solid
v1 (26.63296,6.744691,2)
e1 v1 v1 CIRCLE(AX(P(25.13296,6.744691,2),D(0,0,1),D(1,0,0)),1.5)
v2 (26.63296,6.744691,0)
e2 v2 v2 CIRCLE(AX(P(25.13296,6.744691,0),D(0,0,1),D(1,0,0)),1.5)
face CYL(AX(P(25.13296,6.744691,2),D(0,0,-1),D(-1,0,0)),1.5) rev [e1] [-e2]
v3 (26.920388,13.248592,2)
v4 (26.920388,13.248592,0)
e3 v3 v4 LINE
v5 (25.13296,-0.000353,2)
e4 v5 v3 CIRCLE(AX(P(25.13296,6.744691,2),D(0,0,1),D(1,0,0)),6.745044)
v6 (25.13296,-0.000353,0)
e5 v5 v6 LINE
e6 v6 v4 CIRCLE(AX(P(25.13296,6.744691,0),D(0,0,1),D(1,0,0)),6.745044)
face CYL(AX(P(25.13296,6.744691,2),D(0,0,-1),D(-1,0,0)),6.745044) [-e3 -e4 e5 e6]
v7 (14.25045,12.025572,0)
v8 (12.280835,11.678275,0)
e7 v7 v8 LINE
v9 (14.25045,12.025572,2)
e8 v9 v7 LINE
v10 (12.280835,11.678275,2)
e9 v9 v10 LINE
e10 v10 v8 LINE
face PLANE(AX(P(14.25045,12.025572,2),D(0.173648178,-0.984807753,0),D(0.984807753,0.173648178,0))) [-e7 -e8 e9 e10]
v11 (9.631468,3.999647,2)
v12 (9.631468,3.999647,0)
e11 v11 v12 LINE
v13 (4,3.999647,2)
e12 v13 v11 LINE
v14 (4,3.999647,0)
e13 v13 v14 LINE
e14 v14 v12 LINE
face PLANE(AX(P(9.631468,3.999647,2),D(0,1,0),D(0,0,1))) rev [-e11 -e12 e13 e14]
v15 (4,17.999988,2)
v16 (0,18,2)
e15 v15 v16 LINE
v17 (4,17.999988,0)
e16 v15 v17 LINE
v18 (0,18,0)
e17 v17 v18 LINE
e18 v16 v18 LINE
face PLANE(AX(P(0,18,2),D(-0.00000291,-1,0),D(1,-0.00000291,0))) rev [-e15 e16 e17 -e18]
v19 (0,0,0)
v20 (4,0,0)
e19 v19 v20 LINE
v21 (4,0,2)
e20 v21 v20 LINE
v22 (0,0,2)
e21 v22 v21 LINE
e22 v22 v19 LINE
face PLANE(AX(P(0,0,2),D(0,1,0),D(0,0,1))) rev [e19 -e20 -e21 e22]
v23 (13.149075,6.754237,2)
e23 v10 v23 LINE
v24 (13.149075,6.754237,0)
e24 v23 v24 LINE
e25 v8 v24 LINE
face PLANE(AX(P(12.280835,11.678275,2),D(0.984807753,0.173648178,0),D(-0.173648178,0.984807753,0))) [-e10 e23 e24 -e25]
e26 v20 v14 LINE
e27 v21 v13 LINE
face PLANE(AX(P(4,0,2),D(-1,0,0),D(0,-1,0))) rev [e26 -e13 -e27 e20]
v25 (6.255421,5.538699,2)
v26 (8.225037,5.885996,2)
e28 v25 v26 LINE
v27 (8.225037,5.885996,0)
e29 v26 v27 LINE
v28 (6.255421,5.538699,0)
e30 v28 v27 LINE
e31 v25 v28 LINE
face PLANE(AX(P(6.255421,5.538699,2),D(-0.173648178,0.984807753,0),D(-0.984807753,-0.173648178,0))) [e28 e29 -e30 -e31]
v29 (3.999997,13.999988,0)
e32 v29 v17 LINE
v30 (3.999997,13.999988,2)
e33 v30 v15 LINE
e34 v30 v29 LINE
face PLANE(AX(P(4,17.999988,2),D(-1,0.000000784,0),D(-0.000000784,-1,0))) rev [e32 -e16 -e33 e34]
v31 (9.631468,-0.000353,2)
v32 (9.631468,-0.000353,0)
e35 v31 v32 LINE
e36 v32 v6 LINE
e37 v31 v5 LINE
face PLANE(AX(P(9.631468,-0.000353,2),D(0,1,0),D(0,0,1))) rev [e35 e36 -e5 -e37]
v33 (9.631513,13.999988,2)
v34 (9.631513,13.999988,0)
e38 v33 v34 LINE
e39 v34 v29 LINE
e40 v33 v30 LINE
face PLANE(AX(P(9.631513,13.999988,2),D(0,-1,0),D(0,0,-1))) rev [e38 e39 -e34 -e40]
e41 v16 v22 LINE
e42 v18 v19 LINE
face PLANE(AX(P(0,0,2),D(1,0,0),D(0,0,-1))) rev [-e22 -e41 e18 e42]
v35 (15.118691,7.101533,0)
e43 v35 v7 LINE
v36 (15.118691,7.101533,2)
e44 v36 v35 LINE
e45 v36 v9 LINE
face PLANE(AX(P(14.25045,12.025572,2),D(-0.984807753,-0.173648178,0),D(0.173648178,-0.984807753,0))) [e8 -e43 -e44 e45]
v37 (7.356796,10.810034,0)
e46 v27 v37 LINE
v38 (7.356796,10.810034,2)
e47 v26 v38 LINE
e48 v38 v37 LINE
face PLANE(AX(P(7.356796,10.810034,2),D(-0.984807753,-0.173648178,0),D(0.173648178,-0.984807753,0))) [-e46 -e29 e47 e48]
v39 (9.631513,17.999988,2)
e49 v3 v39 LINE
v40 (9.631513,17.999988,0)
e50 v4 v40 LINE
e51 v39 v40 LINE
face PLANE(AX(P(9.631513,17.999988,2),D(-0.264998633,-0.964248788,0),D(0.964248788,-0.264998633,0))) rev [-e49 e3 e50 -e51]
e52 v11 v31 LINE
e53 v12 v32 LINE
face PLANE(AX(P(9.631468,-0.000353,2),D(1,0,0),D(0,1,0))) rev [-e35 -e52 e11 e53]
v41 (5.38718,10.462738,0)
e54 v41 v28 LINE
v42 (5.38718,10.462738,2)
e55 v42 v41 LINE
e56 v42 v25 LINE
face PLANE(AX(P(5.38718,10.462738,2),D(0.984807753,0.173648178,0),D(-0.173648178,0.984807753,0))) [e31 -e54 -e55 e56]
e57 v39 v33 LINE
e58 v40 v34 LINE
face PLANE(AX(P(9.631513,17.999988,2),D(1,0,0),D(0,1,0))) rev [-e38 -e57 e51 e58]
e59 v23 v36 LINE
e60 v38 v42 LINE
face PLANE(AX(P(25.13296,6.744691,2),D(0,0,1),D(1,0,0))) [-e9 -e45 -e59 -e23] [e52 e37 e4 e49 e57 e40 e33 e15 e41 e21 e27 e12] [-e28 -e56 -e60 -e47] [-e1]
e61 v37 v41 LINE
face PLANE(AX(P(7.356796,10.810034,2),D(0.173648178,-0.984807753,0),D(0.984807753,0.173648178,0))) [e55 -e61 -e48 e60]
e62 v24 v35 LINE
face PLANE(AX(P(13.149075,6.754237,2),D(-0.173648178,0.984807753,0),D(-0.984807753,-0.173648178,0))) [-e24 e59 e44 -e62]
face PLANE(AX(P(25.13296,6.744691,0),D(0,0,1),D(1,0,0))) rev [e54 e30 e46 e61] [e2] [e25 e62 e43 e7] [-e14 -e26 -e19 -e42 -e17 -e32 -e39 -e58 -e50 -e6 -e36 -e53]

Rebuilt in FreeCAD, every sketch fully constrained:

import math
import FreeCAD as App
import Part
import Sketcher

V = App.Vector
Q = App.Units.Quantity


def add_polygon(sketch, points):
    """Adds a closed chain of lines whose ends are joined by coincident constraints."""
    first, n = sketch.GeometryCount, len(points)
    for a, b in zip(points, points[1:] + points[:1]):
        sketch.addGeometry(Part.LineSegment(App.Vector(*a, 0), App.Vector(*b, 0)), False)
    for i in range(n):
        sketch.addConstraint(Sketcher.Constraint("Coincident", first + i, 2, first + (i + 1) % n, 1))

doc = App.newDocument("Part")
body = doc.addObject("PartDesign::Body", "Body")

sketch1 = doc.addObject("Sketcher::SketchObject", "Sketch")
body.addObject(sketch1)
sketch1.AttachmentSupport = (doc.XY_Plane, [""])
sketch1.MapMode = "FlatFace"
sketch1.addGeometry(Part.LineSegment(V(0, 18, 0), V(0, 0, 0)), False)
sketch1.addGeometry(Part.LineSegment(V(0, 0, 0), V(4, 0, 0)), False)
sketch1.addGeometry(Part.LineSegment(V(4, 0, 0), V(4, 4, 0)), False)
sketch1.addGeometry(Part.LineSegment(V(4, 4, 0), V(9.6, 4, 0)), False)
sketch1.addGeometry(Part.LineSegment(V(9.6, 4, 0), V(9.6, 0, 0)), False)
sketch1.addGeometry(Part.LineSegment(V(9.6, 0, 0), V(25.1, 0, 0)), False)
sketch1.addGeometry(Part.ArcOfCircle(Part.Circle(V(25.1, 6.7, 0), V(0, 0, 1), 6.7), math.radians(-90), math.radians(75)), False)
sketch1.addGeometry(Part.LineSegment(V(26.9, 13.2, 0), V(9.6, 18, 0)), False)
sketch1.addGeometry(Part.LineSegment(V(9.6, 18, 0), V(9.6, 14, 0)), False)
sketch1.addGeometry(Part.LineSegment(V(9.6, 14, 0), V(4, 14, 0)), False)
sketch1.addGeometry(Part.LineSegment(V(4, 14, 0), V(4, 18, 0)), False)
sketch1.addGeometry(Part.LineSegment(V(4, 18, 0), V(0, 18, 0)), False)
sketch1.addGeometry(Part.Circle(V(25.1, 6.7, 0), V(0, 0, 1), 1.5), False)
add_polygon(sketch1, [(7.4, 10.8), (8.2, 5.9), (6.3, 5.5), (5.4, 10.5)])
add_polygon(sketch1, [(14.3, 12), (15.1, 7.1), (13.1, 6.8), (12.3, 11.7)])
sketch1.addConstraint([
    Sketcher.Constraint("Coincident", 0, 2, 1, 1),
    Sketcher.Constraint("Coincident", 1, 2, 2, 1),
    Sketcher.Constraint("Coincident", 2, 2, 3, 1),
    Sketcher.Constraint("Coincident", 3, 2, 4, 1),
    Sketcher.Constraint("Coincident", 4, 2, 5, 1),
    Sketcher.Constraint("Tangent", 5, 2, 6, 1),
    Sketcher.Constraint("Tangent", 6, 2, 7, 1),
    Sketcher.Constraint("Coincident", 7, 2, 8, 1),
    Sketcher.Constraint("Coincident", 8, 2, 9, 1),
    Sketcher.Constraint("Coincident", 9, 2, 10, 1),
    Sketcher.Constraint("Coincident", 10, 2, 11, 1),
    Sketcher.Constraint("Coincident", 11, 2, 0, 1),
    Sketcher.Constraint("Vertical", 0),
    Sketcher.Constraint("Horizontal", 1),
    Sketcher.Constraint("Vertical", 2),
    Sketcher.Constraint("Horizontal", 3),
    Sketcher.Constraint("Vertical", 4),
    Sketcher.Constraint("Horizontal", 5),
    Sketcher.Constraint("Vertical", 8),
    Sketcher.Constraint("Horizontal", 9),
    Sketcher.Constraint("Coincident", 0, 2, -1, 1),
    Sketcher.Constraint("Coincident", 12, 3, 6, 3),
    Sketcher.Constraint("Perpendicular", 13, 14),
    Sketcher.Constraint("Perpendicular", 14, 15),
    Sketcher.Constraint("Perpendicular", 15, 16),
    Sketcher.Constraint("Perpendicular", 16, 17),
    Sketcher.Constraint("Perpendicular", 17, 18),
    Sketcher.Constraint("Perpendicular", 18, 19),
    Sketcher.Constraint("Perpendicular", 19, 20),
    Sketcher.Constraint("Horizontal", 7, 2, 10, 2),
    Sketcher.Constraint("Vertical", 2, 2, 10, 2),
    Sketcher.Constraint("Equal", 1, 4),
    Sketcher.Constraint("Equal", 4, 8),
    Sketcher.Constraint("Equal", 15, 17),
    Sketcher.Constraint("Equal", 16, 18),
    Sketcher.Constraint("Diameter", 12, Q("3 mm")),
    Sketcher.Constraint("DistanceX", 1, 1, 1, 2, Q("4 mm")),
    Sketcher.Constraint("DistanceY", 0, 2, 0, 1, Q("18 mm")),
    Sketcher.Constraint("Angle", 13, Q("-80 deg")),
    Sketcher.Constraint("Distance", 13, Q("5 mm")),
    Sketcher.Constraint("Distance", 14, Q("2 mm")),
    Sketcher.Constraint("Radius", 6, Q("6.745044 mm")),
    Sketcher.Constraint("DistanceY", -1, 1, 14, 2, Q("5.538699 mm")),
    Sketcher.Constraint("DistanceY", 6, 3, 6, 2, Q("6.503901 mm")),
    Sketcher.Constraint("DistanceX", 9, 2, 16, 2, Q("3.356799 mm")),
    Sketcher.Constraint("DistanceY", 17, 2, 16, 2, Q("3.708502 mm")),
    Sketcher.Constraint("Distance", 7, Q("17.92989 mm")),
    Sketcher.Constraint("DistanceX", 3, 1, 3, 2, Q("5.631468 mm")),
    Sketcher.Constraint("DistanceX", 5, 1, 5, 2, Q("15.501493 mm")),
    Sketcher.Constraint("DistanceX", 9, 2, 9, 1, Q("5.631516 mm")),
    Sketcher.Constraint("DistanceY", 2, 1, 2, 2, Q("3.999647 mm")),
    Sketcher.Constraint("DistanceX", -1, 1, 17, 2, Q("15.118691 mm")),
])
pad1 = doc.addObject("PartDesign::Pad", "Pad")
body.addObject(pad1)
pad1.Profile = sketch1
pad1.Length = 2

doc.recompute()
